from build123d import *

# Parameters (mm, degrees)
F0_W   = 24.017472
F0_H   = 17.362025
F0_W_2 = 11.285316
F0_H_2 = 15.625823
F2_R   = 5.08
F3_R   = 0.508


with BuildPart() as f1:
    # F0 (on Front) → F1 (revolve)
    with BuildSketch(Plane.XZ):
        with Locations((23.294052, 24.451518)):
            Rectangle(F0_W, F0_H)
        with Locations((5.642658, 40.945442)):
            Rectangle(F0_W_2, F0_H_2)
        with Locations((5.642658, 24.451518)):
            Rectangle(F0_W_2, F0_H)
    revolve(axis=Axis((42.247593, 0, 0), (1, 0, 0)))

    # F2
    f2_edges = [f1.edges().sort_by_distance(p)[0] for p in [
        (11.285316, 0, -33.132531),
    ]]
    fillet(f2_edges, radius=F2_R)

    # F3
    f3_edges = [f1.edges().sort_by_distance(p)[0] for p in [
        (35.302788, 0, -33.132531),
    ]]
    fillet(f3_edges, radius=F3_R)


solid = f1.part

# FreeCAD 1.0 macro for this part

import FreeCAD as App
import Part
import Sketcher
from FreeCAD import Vector
Q = App.Units.Quantity


def edges_at(feature, points):
    """Names of the edges that pass closest to the given points."""
    edges = feature.Shape.Edges
    near = lambda p: min(range(len(edges)), key=lambda i: edges[i].distToShape(Part.Vertex(*p))[0])
    return sorted({f"Edge{near(p) + 1}" for p in points})


def add_polygon(sketch, points):
    """Adds a closed chain of lines whose ends are joined by coincident constraints."""
    first, n = sketch.GeometryCount, len(points)
    for a, b in zip(points, points[1:] + points[:1]):
        sketch.addGeometry(Part.LineSegment(App.Vector(*a, 0), App.Vector(*b, 0)), False)
    for i in range(n):
        sketch.addConstraint(Sketcher.Constraint("Coincident", first + i, 2, first + (i + 1) % n, 1))

doc = App.newDocument("Part")
body = doc.addObject("PartDesign::Body", "Body")

# Sketch on XZ plane
sketch1 = body.newObject("Sketcher::SketchObject", "Sketch")
sketch1.AttachmentSupport = (doc.getObject("XZ_Plane"), [""])
sketch1.MapMode = "FlatFace"
add_polygon(sketch1, [(35, 16), (35, 33), (11, 33), (11, 49), (0, 49), (0, 16)])  # lines 0-5
sketch1.addConstraint([
    Sketcher.Constraint("Vertical", 0),
    Sketcher.Constraint("Horizontal", 1),
    Sketcher.Constraint("Vertical", 2),
    Sketcher.Constraint("Horizontal", 3),
    Sketcher.Constraint("Vertical", 4),
    Sketcher.Constraint("Horizontal", 5),
    Sketcher.Constraint("PointOnObject", 3, 2, -2),
    Sketcher.Constraint("DistanceX", 1, 2, 1, 1, 24.017472),
    Sketcher.Constraint("DistanceX", 3, 2, 3, 1, 11.285316),
    Sketcher.Constraint("DistanceY", 0, 1, 0, 2, 17.362025),
    Sketcher.Constraint("DistanceY", 2, 1, 2, 2, 15.625823),
    Sketcher.Constraint("DistanceY", -1, 1, 0, 2, 33.132531),
])
revolution = body.newObject("PartDesign::Revolution", "Revolution")
revolution.Profile = sketch1
revolution.ReferenceAxis = (sketch1, ["H_Axis"])
revolution.Angle = 360
doc.recompute()

fillet = body.newObject("PartDesign::Fillet", "Fillet")
fillet.Base = (revolution, edges_at(revolution, [(11.285, 0, -33.133)]))
fillet.Radius = Q("0.2 in")
doc.recompute()

fillet2 = body.newObject("PartDesign::Fillet", "Fillet001")
fillet2.Base = (fillet, edges_at(fillet, [(35.303, 0, -33.133)]))
fillet2.Radius = Q("0.02 in")

doc.recompute()
